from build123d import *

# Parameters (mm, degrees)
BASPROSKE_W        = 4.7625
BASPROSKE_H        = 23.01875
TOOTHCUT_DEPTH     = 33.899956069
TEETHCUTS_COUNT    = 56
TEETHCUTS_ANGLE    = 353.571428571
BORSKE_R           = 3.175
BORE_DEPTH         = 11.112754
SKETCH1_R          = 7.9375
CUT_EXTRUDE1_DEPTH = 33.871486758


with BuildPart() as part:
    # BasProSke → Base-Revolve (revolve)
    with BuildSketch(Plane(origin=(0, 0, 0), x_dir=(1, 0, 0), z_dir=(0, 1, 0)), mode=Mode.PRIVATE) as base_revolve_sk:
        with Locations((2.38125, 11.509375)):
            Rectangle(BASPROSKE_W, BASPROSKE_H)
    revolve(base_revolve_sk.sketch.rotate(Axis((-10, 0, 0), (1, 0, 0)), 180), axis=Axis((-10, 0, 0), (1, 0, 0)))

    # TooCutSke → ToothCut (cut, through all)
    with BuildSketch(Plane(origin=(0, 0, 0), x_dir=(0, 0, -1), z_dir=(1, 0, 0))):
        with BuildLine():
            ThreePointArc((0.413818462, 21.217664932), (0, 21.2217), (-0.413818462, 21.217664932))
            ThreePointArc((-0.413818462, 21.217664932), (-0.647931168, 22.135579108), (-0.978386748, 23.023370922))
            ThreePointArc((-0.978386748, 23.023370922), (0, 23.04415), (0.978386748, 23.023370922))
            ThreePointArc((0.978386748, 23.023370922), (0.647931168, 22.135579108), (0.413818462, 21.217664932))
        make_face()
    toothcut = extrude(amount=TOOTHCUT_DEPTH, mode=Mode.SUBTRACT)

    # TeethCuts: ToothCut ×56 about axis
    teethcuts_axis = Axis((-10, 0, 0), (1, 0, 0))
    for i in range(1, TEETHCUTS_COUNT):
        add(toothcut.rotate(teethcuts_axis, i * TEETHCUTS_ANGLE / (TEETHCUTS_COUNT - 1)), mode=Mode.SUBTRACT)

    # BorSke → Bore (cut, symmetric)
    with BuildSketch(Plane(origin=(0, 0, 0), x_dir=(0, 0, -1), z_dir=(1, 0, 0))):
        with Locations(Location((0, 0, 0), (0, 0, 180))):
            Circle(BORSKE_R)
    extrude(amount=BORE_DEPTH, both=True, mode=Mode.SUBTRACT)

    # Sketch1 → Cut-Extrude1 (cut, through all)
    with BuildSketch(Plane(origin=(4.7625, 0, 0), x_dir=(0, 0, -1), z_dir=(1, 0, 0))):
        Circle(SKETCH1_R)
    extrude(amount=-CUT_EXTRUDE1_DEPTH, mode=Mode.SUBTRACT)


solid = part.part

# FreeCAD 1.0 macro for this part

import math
import FreeCAD as App
import Part
import Sketcher
Q = App.Units.Quantity


def add_polygon(sketch, points):
    """Adds a closed chain of lines whose ends are joined by coincident constraints."""
    first, n = sketch.GeometryCount, len(points)
    for a, b in zip(points, points[1:] + points[:1]):
        sketch.addGeometry(Part.LineSegment(App.Vector(*a, 0), App.Vector(*b, 0)), False)
    for i in range(n):
        sketch.addConstraint(Sketcher.Constraint("Coincident", first + i, 2, first + (i + 1) % n, 1))

doc = App.newDocument("Part")
body = doc.addObject("PartDesign::Body", "Body")

# Sketch on XZ plane
sketch1 = body.newObject("Sketcher::SketchObject", "Sketch")
sketch1.AttachmentSupport = (doc.getObject("XZ_Plane"), [""])
sketch1.MapMode = "FlatFace"
add_polygon(sketch1, [(0, -23), (0, 0), (4.8, 0), (4.8, -23)])  # lines 0-3
sketch1.addConstraint([
    Sketcher.Constraint("Vertical", 0),
    Sketcher.Constraint("Horizontal", 1),
    Sketcher.Constraint("Vertical", 2),
    Sketcher.Constraint("Horizontal", 3),
    Sketcher.Constraint("Coincident", 0, 2, -1, 1),
    Sketcher.Constraint("DistanceX", 1, 1, 1, 2, Q("0.1875 in")),
    Sketcher.Constraint("DistanceY", 0, 1, 0, 2, Q("0.90625 in")),
])
revolution = body.newObject("PartDesign::Revolution", "Revolution")
revolution.Profile = sketch1
revolution.ReferenceAxis = (sketch1, ["H_Axis"])
revolution.Angle = 360

# Sketch on YZ plane
sketch2 = body.newObject("Sketcher::SketchObject", "Sketch001")
sketch2.AttachmentSupport = (doc.getObject("YZ_Plane"), [""])
sketch2.MapMode = "FlatFace"
sketch2.addGeometry([
    Part.ArcOfCircle(Part.Circle(App.Vector(0, 0, 0), App.Vector(0, 0, 1), 21.2), math.radians(-1.12), math.radians(1.12)),
    Part.ArcOfCircle(Part.Circle(App.Vector(19.5, -9.1, 0), App.Vector(0, 0, 1), 8.9), math.radians(66.53), math.radians(78.75)),
    Part.ArcOfCircle(Part.Circle(App.Vector(0, 0, 0), App.Vector(0, 0, 1), 23), math.radians(-2.43), math.radians(2.43)),
    Part.ArcOfCircle(Part.Circle(App.Vector(19.5, 9.1, 0), App.Vector(0, 0, 1), 8.9), math.radians(-78.75), math.radians(-66.53)),
], False)
sketch2.addConstraint([
    Sketcher.Constraint("Coincident", 0, 1, 1, 2),
    Sketcher.Constraint("Coincident", 1, 1, 2, 1),
    Sketcher.Constraint("Coincident", 2, 2, 3, 2),
    Sketcher.Constraint("Coincident", 3, 1, 0, 2),
    Sketcher.Constraint("Coincident", 0, 3, -1, 1),
    Sketcher.Constraint("Coincident", 2, 3, -1, 1),
    Sketcher.Constraint("Equal", 1, 3),
    Sketcher.Constraint("Symmetric", 1, 3, 3, 3, -1),
    Sketcher.Constraint("Radius", 1, Q("0.35 in")),
    Sketcher.Constraint("Radius", 0, Q("0.8355 in")),
    Sketcher.Constraint("Radius", 2, 23.04415),
    Sketcher.Constraint("DistanceY", 0, 1, -1, 1, 0.413818),
    Sketcher.Constraint("DistanceX", -1, 1, 2, 2, 23.023371),
])
pocket1 = body.newObject("PartDesign::Pocket", "Pocket")
pocket1.Profile = sketch2
pocket1.Type = "ThroughAll"
pocket1.Reversed = True
doc.recompute()

polarpattern = body.newObject("PartDesign::PolarPattern", "PolarPattern")
polarpattern.Originals = [pocket1]
polarpattern.Axis = (doc.getObject("X_Axis"), [""])
polarpattern.Angle = 360
polarpattern.Occurrences = 56
body.Tip = polarpattern

# Sketch on YZ plane
sketch3 = body.newObject("Sketcher::SketchObject", "Sketch002")
sketch3.AttachmentSupport = (doc.getObject("YZ_Plane"), [""])
sketch3.MapMode = "FlatFace"
sketch3.addGeometry(Part.Circle(App.Vector(0, 0, 0), App.Vector(0, 0, 1), 3.2), False)
sketch3.addConstraint([
    Sketcher.Constraint("Coincident", 0, 3, -1, 1),
    Sketcher.Constraint("Diameter", 0, Q("0.25 in")),
])
pocket2 = body.newObject("PartDesign::Pocket", "Pocket001")
pocket2.Profile = sketch3
pocket2.Length = 22.225508
pocket2.Midplane = True

# Sketch on YZ plane
sketch4 = body.newObject("Sketcher::SketchObject", "Sketch003")
sketch4.AttachmentSupport = (doc.getObject("YZ_Plane"), [""])
sketch4.MapMode = "FlatFace"
sketch4.AttachmentOffset = App.Placement(App.Vector(0, 0, 0.1875 * 25.4), App.Rotation())
sketch4.addGeometry(Part.Circle(App.Vector(0, 0, 0), App.Vector(0, 0, 1), 8), False)
sketch4.addConstraint([
    Sketcher.Constraint("Coincident", 0, 3, -1, 1),
    Sketcher.Constraint("Diameter", 0, Q("0.625 in")),
])
pocket3 = body.newObject("PartDesign::Pocket", "Pocket002")
pocket3.Profile = sketch4
pocket3.Type = "ThroughAll"

doc.recompute()
